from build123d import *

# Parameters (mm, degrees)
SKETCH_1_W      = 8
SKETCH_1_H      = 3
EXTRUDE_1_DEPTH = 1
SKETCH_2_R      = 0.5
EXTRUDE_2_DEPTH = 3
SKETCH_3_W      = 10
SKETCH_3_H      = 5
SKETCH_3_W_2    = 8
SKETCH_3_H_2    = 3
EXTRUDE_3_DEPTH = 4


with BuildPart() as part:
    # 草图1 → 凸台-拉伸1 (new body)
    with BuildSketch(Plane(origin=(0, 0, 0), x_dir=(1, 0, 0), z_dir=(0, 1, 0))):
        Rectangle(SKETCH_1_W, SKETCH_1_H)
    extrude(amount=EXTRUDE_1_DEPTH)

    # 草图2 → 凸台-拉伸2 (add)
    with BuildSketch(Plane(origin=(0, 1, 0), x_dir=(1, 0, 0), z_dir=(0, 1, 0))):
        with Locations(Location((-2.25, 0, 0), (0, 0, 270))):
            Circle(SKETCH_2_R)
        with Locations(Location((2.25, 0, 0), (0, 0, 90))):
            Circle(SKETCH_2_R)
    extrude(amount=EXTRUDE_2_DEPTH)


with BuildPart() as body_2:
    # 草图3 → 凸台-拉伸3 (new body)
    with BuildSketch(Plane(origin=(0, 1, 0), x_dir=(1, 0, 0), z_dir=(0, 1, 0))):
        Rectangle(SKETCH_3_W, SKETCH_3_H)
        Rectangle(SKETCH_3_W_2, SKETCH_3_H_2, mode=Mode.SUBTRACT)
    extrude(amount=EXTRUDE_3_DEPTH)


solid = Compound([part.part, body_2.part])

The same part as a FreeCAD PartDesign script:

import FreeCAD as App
import Part
import Sketcher

doc = App.newDocument("Part")
params = doc.addObject("Spreadsheet::Sheet", "Params")
for row, (alias, value) in enumerate([
    ("sketch1_width", "8 mm"),
    ("sketch1_height", "3 mm"),
    ("pad1_length", "1 mm"),
    ("sketch2_diameter", "1 mm"),
    ("pad2_length", "3 mm"),
    ("sketch3_width", "10 mm"),
    ("sketch3_width2", "8 mm"),
    ("sketch3_height", "5 mm"),
    ("sketch3_height2", "3 mm"),
    ("pad3_length", "4 mm"),
], start=1):
    params.set(f"A{row}", alias)
    params.set(f"B{row}", "=" + value)
    params.setAlias(f"B{row}", alias)

body = doc.addObject("PartDesign::Body", "Body")

# Sketch on XZ plane
sketch1 = body.newObject("Sketcher::SketchObject", "Sketch")
sketch1.AttachmentSupport = (doc.getObject("XZ_Plane"), [""])
sketch1.MapMode = "FlatFace"
sketch1.addGeometry([
    Part.LineSegment(App.Vector(-4, -1.5, 0), App.Vector(-4, 1.5, 0)),
    Part.LineSegment(App.Vector(-4, 1.5, 0), App.Vector(4, 1.5, 0)),
    Part.LineSegment(App.Vector(4, 1.5, 0), App.Vector(4, -1.5, 0)),
    Part.LineSegment(App.Vector(4, -1.5, 0), App.Vector(-4, -1.5, 0)),
], False)
sketch1.addConstraint([
    Sketcher.Constraint("Coincident", 0, 2, 1, 1),
    Sketcher.Constraint("Coincident", 1, 2, 2, 1),
    Sketcher.Constraint("Coincident", 2, 2, 3, 1),
    Sketcher.Constraint("Coincident", 3, 2, 0, 1),
    Sketcher.Constraint("Vertical", 0),
    Sketcher.Constraint("Horizontal", 1),
    Sketcher.Constraint("Vertical", 2),
    Sketcher.Constraint("Horizontal", 3),
    Sketcher.Constraint("Symmetric", 0, 2, 2, 2, -1, 1),
    Sketcher.Constraint("DistanceX", 1, 1, 1, 2, 8.0),
    Sketcher.Constraint("DistanceY", 0, 1, 0, 2, 3.0),
])
sketch1.setExpression("Constraints[9]", "Params.sketch1_width")
sketch1.setExpression("Constraints[10]", "Params.sketch1_height")
pad1 = body.newObject("PartDesign::Pad", "Pad")
pad1.Profile = sketch1
pad1.setExpression("Length", "Params.pad1_length")
pad1.Reversed = True

# Sketch on XZ plane
sketch2 = body.newObject("Sketcher::SketchObject", "Sketch001")
sketch2.AttachmentSupport = (doc.getObject("XZ_Plane"), [""])
sketch2.MapMode = "FlatFace"
sketch2.AttachmentOffset = App.Placement(App.Vector(0, 0, -1), App.Rotation())
sketch2.addGeometry([
    Part.Circle(App.Vector(-2.2, 0, 0), App.Vector(0, 0, 1), 0.5),
    Part.Circle(App.Vector(2.2, 0, 0), App.Vector(0, 0, 1), 0.5),
], False)
sketch2.addConstraint([
    Sketcher.Constraint("Equal", 0, 1),
    Sketcher.Constraint("Symmetric", 0, 3, 1, 3, -1, 1),
    Sketcher.Constraint("PointOnObject", 0, 3, -1),
    Sketcher.Constraint("Diameter", 0, 1.0),
    Sketcher.Constraint("DistanceX", 0, 3, 1, 3, 4.5),
])
sketch2.setExpression("Constraints[3]", "Params.sketch2_diameter")
pad2 = body.newObject("PartDesign::Pad", "Pad001")
pad2.Profile = sketch2
pad2.setExpression("Length", "Params.pad2_length")
pad2.Reversed = True
body2 = doc.addObject("PartDesign::Body", "Body001")

# Sketch on XZ plane
sketch3 = body2.newObject("Sketcher::SketchObject", "Sketch002")
sketch3.AttachmentSupport = (doc.getObject("XZ_Plane001"), [""])
sketch3.MapMode = "FlatFace"
sketch3.AttachmentOffset = App.Placement(App.Vector(0, 0, -1), App.Rotation())
sketch3.addGeometry([
    Part.LineSegment(App.Vector(-5, -2.5, 0), App.Vector(-5, 2.5, 0)),  # 0
    Part.LineSegment(App.Vector(-5, 2.5, 0), App.Vector(5, 2.5, 0)),  # 1
    Part.LineSegment(App.Vector(5, 2.5, 0), App.Vector(5, -2.5, 0)),  # 2
    Part.LineSegment(App.Vector(5, -2.5, 0), App.Vector(-5, -2.5, 0)),  # 3
    Part.LineSegment(App.Vector(4, 1.5, 0), App.Vector(-4, 1.5, 0)),  # 4
    Part.LineSegment(App.Vector(-4, 1.5, 0), App.Vector(-4, -1.5, 0)),  # 5
    Part.LineSegment(App.Vector(-4, -1.5, 0), App.Vector(4, -1.5, 0)),  # 6
    Part.LineSegment(App.Vector(4, -1.5, 0), App.Vector(4, 1.5, 0)),  # 7
], False)
sketch3.addConstraint([
    Sketcher.Constraint("Coincident", 0, 2, 1, 1),
    Sketcher.Constraint("Coincident", 1, 2, 2, 1),
    Sketcher.Constraint("Coincident", 2, 2, 3, 1),
    Sketcher.Constraint("Coincident", 3, 2, 0, 1),
    Sketcher.Constraint("Coincident", 4, 2, 5, 1),
    Sketcher.Constraint("Coincident", 5, 2, 6, 1),
    Sketcher.Constraint("Coincident", 6, 2, 7, 1),
    Sketcher.Constraint("Coincident", 7, 2, 4, 1),
    Sketcher.Constraint("Vertical", 0),
    Sketcher.Constraint("Horizontal", 1),
    Sketcher.Constraint("Vertical", 2),
    Sketcher.Constraint("Horizontal", 3),
    Sketcher.Constraint("Horizontal", 4),
    Sketcher.Constraint("Vertical", 5),
    Sketcher.Constraint("Horizontal", 6),
    Sketcher.Constraint("Vertical", 7),
    Sketcher.Constraint("Symmetric", 0, 2, 2, 2, -1, 1),
    Sketcher.Constraint("Symmetric", 4, 2, 6, 2, -1, 1),
    Sketcher.Constraint("DistanceX", 1, 1, 1, 2, 10.0),
    Sketcher.Constraint("DistanceX", 4, 2, 4, 1, 8.0),
    Sketcher.Constraint("DistanceY", 0, 1, 0, 2, 5.0),
    Sketcher.Constraint("DistanceY", 5, 2, 5, 1, 3.0),
])
sketch3.setExpression("Constraints[18]", "Params.sketch3_width")
sketch3.setExpression("Constraints[19]", "Params.sketch3_width2")
sketch3.setExpression("Constraints[20]", "Params.sketch3_height")
sketch3.setExpression("Constraints[21]", "Params.sketch3_height2")
pad3 = body2.newObject("PartDesign::Pad", "Pad002")
pad3.Profile = sketch3
pad3.setExpression("Length", "Params.pad3_length")
pad3.Reversed = True

doc.recompute()
